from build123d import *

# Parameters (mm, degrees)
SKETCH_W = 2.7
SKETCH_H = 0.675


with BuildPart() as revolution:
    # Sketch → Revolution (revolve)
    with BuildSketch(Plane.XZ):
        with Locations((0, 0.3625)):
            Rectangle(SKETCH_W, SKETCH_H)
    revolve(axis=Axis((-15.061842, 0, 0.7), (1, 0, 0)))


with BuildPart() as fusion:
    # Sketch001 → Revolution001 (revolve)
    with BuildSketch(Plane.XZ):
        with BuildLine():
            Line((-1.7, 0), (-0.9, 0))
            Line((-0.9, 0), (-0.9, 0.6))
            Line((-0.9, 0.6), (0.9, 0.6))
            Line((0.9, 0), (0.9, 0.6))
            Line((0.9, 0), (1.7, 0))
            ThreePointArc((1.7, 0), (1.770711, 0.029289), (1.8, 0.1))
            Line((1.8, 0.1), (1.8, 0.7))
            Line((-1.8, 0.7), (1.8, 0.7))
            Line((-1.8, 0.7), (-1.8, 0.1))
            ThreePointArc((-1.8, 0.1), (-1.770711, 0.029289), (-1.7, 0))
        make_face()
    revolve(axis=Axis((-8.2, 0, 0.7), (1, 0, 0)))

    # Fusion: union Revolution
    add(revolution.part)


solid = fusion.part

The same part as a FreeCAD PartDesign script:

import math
import FreeCAD as App
import Part
import Sketcher


def add_polygon(sketch, points):
    """Adds a closed chain of lines whose ends are joined by coincident constraints."""
    first, n = sketch.GeometryCount, len(points)
    for a, b in zip(points, points[1:] + points[:1]):
        sketch.addGeometry(Part.LineSegment(App.Vector(*a, 0), App.Vector(*b, 0)), False)
    for i in range(n):
        sketch.addConstraint(Sketcher.Constraint("Coincident", first + i, 2, first + (i + 1) % n, 1))

doc = App.newDocument("Part")
body = doc.addObject("PartDesign::Body", "Body")

# Sketch on XZ plane
sketch1 = body.newObject("Sketcher::SketchObject", "Sketch")
sketch1.AttachmentSupport = (doc.getObject("XZ_Plane"), [""])
sketch1.MapMode = "FlatFace"
add_polygon(sketch1, [(-1.35, 0.7), (-1.35, 0.025), (1.35, 0.025), (1.35, 0.7)])  # lines 0-3
sketch1.addGeometry(Part.LineSegment(App.Vector(-1.35, 0.7, 0), App.Vector(1.35, 0.7, 0)), True)  # axis
sketch1.addConstraint([
    Sketcher.Constraint("Vertical", 0),
    Sketcher.Constraint("Horizontal", 1),
    Sketcher.Constraint("Vertical", 2),
    Sketcher.Constraint("Horizontal", 3),
    Sketcher.Constraint("Horizontal", 4),
    Sketcher.Constraint("Coincident", 4, 1, 3, 2),
    Sketcher.Constraint("Vertical", 1, 2, 4, 2),
    Sketcher.Constraint("DistanceX", 1, 1, 1, 2, 2.7),
    Sketcher.Constraint("DistanceY", -1, 1, 2, 2, 0.7),
    Sketcher.Constraint("DistanceY", 0, 2, 0, 1, 0.675),
    Sketcher.Constraint("DistanceX", 0, 2, -1, 1, 1.35),
])
revolution = body.newObject("PartDesign::Revolution", "Revolution")
revolution.Profile = sketch1
revolution.ReferenceAxis = (sketch1, ["Axis0"])
revolution.Angle = 360
body2 = doc.addObject("PartDesign::Body", "Body001")

# Sketch on XZ plane
sketch2 = body2.newObject("Sketcher::SketchObject", "Sketch001")
sketch2.AttachmentSupport = (doc.getObject("XZ_Plane001"), [""])
sketch2.MapMode = "FlatFace"
sketch2.addGeometry([
    Part.LineSegment(App.Vector(-1.7, 0, 0), App.Vector(-0.9, 0, 0)),  # 0
    Part.LineSegment(App.Vector(-0.9, 0, 0), App.Vector(-0.9, 0.6, 0)),  # 1
    Part.LineSegment(App.Vector(-0.9, 0.6, 0), App.Vector(0.9, 0.6, 0)),  # 2
    Part.LineSegment(App.Vector(0.9, 0.6, 0), App.Vector(0.9, 0, 0)),  # 3
    Part.LineSegment(App.Vector(0.9, 0, 0), App.Vector(1.7, 0, 0)),  # 4
    Part.ArcOfCircle(Part.Circle(App.Vector(1.700001, 0.099999, 0), App.Vector(0, 0, 1), 0.099999), math.radians(-90.00063), math.radians(0.00063)),  # 5
    Part.LineSegment(App.Vector(1.8, 0.1, 0), App.Vector(1.8, 0.7, 0)),  # 6
    Part.LineSegment(App.Vector(1.8, 0.7, 0), App.Vector(-1.8, 0.7, 0)),  # 7
    Part.LineSegment(App.Vector(-1.8, 0.7, 0), App.Vector(-1.8, 0.1, 0)),  # 8
    Part.ArcOfCircle(Part.Circle(App.Vector(-1.700001, 0.099999, 0), App.Vector(0, 0, 1), 0.099999), math.radians(179.99937), math.radians(270.00063)),  # 9
], False)
sketch2.addGeometry(Part.LineSegment(App.Vector(-1.8, 0.7, 0), App.Vector(1.8, 0.7, 0)), True)  # axis
sketch2.addConstraint([
    Sketcher.Constraint("Coincident", 0, 2, 1, 1),
    Sketcher.Constraint("Coincident", 1, 2, 2, 1),
    Sketcher.Constraint("Coincident", 2, 2, 3, 1),
    Sketcher.Constraint("Coincident", 3, 2, 4, 1),
    Sketcher.Constraint("Coincident", 4, 2, 5, 1),
    Sketcher.Constraint("Coincident", 5, 2, 6, 1),
    Sketcher.Constraint("Coincident", 6, 2, 7, 1),
    Sketcher.Constraint("Coincident", 7, 2, 8, 1),
    Sketcher.Constraint("Coincident", 8, 2, 9, 1),
    Sketcher.Constraint("Coincident", 9, 2, 0, 1),
    Sketcher.Constraint("Horizontal", 0),
    Sketcher.Constraint("Vertical", 1),
    Sketcher.Constraint("Horizontal", 2),
    Sketcher.Constraint("Vertical", 3),
    Sketcher.Constraint("Horizontal", 4),
    Sketcher.Constraint("Vertical", 6),
    Sketcher.Constraint("Horizontal", 7),
    Sketcher.Constraint("Vertical", 8),
    Sketcher.Constraint("Horizontal", 10),
    Sketcher.Constraint("Coincident", 10, 1, 7, 2),
    Sketcher.Constraint("Equal", 5, 9),
    Sketcher.Constraint("Symmetric", 0, 2, 3, 2, -1, 1),
    Sketcher.Constraint("Symmetric", 5, 3, 9, 3, -2),
    Sketcher.Constraint("Horizontal", 9, 3, 5, 2),
    Sketcher.Constraint("Horizontal", 5, 2, 8, 2),
    Sketcher.Constraint("Vertical", 5, 3, 4, 2),
    Sketcher.Constraint("Vertical", 5, 2, 10, 2),
    Sketcher.Constraint("Equal", 0, 4),
    Sketcher.Constraint("Equal", 3, 6),
    Sketcher.Constraint("Radius", 5, 0.099999),
    Sketcher.Constraint("DistanceX", 0, 1, 0, 2, 0.8),
    Sketcher.Constraint("DistanceX", 2, 1, 2, 2, 1.8),
    Sketcher.Constraint("DistanceY", 1, 1, 1, 2, 0.6),
])
revolution2 = body2.newObject("PartDesign::Revolution", "Revolution001")
revolution2.Profile = sketch2
revolution2.ReferenceAxis = (sketch2, ["Axis0"])
revolution2.Angle = 360
doc.recompute()

boolean = body2.newObject("PartDesign::Boolean", "Boolean")
boolean.Type = "Fuse"
boolean.addObjects([body])

doc.recompute()
